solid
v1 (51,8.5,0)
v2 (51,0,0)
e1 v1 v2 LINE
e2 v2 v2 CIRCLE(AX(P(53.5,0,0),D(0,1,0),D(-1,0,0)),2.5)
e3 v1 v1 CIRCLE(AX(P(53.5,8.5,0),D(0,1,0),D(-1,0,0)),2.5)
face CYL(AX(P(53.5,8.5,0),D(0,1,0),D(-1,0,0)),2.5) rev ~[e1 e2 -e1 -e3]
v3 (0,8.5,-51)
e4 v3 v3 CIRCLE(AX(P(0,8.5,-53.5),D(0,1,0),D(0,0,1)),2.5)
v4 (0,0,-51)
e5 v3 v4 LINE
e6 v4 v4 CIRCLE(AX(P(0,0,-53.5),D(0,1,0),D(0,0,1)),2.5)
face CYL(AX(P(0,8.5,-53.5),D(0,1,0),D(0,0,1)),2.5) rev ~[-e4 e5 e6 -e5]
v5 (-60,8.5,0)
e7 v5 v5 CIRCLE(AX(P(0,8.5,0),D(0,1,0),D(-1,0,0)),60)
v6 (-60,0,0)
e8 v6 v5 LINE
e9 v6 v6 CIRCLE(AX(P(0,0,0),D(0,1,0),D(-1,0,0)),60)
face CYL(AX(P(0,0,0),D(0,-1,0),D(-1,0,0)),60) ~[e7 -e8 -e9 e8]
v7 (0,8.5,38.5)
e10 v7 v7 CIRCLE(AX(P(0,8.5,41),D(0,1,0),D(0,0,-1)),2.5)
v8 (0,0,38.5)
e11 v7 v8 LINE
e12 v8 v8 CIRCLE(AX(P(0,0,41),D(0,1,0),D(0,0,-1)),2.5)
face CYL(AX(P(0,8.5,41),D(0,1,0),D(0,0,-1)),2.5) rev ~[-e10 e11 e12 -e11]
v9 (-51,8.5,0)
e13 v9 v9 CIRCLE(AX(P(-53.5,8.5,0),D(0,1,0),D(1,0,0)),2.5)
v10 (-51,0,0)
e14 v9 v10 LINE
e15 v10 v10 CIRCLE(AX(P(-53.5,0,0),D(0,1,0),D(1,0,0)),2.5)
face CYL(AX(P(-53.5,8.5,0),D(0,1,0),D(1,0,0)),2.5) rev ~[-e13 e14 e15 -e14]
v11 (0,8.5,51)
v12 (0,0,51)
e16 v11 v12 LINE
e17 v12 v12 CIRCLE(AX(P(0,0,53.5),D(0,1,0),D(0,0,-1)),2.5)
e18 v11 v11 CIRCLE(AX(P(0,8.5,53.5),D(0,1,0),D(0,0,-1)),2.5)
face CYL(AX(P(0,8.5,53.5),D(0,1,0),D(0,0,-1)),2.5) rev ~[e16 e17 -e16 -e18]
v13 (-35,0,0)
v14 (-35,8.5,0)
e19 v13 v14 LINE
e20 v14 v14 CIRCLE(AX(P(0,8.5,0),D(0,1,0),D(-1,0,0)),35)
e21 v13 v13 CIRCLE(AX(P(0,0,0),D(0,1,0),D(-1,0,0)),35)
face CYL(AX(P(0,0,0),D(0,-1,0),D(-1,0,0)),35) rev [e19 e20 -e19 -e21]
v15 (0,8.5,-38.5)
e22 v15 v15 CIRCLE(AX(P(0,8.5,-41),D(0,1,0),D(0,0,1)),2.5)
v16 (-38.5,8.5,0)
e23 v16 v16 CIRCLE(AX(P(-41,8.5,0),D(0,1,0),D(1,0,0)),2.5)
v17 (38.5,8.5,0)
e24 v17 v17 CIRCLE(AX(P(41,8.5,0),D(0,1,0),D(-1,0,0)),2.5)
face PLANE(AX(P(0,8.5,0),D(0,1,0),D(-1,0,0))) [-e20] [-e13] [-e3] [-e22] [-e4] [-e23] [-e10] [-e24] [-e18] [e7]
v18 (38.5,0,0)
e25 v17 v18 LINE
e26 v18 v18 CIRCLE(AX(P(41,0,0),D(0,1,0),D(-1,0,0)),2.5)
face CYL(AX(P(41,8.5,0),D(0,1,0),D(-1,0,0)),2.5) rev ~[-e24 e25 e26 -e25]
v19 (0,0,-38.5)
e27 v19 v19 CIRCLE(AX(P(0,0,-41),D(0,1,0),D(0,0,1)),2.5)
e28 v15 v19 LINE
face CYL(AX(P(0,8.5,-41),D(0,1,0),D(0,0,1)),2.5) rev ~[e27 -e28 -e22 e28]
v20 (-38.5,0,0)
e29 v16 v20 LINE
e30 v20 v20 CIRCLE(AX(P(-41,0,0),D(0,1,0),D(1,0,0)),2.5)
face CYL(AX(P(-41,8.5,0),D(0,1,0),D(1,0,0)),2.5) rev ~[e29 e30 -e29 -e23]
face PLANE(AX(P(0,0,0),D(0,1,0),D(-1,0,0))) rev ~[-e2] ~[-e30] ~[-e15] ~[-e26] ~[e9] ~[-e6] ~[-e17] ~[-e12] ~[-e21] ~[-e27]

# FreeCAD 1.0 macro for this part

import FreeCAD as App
import Part
import Sketcher
from FreeCAD import Vector

doc = App.newDocument("Part")
body = doc.addObject("PartDesign::Body", "Body")

# Sketch on XZ plane
sketch1 = doc.addObject("Sketcher::SketchObject", "Sketch")
body.addObject(sketch1)
sketch1.AttachmentSupport = (doc.XZ_Plane, [""])
sketch1.MapMode = "FlatFace"
sketch1.addGeometry([
    Part.Circle(Vector(0, 0, 0), Vector(0, 0, 1), 60),
    Part.Circle(Vector(0, 0, 0), Vector(0, 0, 1), 35),
], False)
sketch1.addConstraint([
    Sketcher.Constraint("Coincident", 0, 3, -1, 1),
    Sketcher.Constraint("Coincident", 1, 3, -1, 1),
    Sketcher.Constraint("Diameter", 0, 120.0),
    Sketcher.Constraint("Diameter", 1, 70.0),
])
pad1 = doc.addObject("PartDesign::Pad", "Pad")
body.addObject(pad1)
pad1.Profile = sketch1
pad1.Length = 8.5
pad1.Reversed = True

# Sketch on XZ plane
sketch2 = doc.addObject("Sketcher::SketchObject", "Sketch001")
body.addObject(sketch2)
sketch2.AttachmentSupport = (doc.XZ_Plane, [""])
sketch2.MapMode = "FlatFace"
sketch2.AttachmentOffset = App.Placement(Vector(0, 0, -8.5), App.Rotation())
sketch2.addGeometry([
    Part.Circle(Vector(-41, 0, 0), Vector(0, 0, 1), 2.5),
    Part.Circle(Vector(-53.5, 0, 0), Vector(0, 0, 1), 2.5),
], False)
sketch2.addConstraint([
    Sketcher.Constraint("Equal", 0, 1),
    Sketcher.Constraint("PointOnObject", 0, 3, -1),
    Sketcher.Constraint("PointOnObject", 1, 3, -1),
    Sketcher.Constraint("Diameter", 0, 5.0),
    Sketcher.Constraint("DistanceX", 0, 3, -1, 1, 41.0),
    Sketcher.Constraint("DistanceX", 1, 3, -1, 1, 53.5),
])
pocket1 = doc.addObject("PartDesign::Pocket", "Pocket")
body.addObject(pocket1)
pocket1.Profile = sketch2
pocket1.Type = "ThroughAll"
pocket1.Reversed = True
doc.recompute()

polarpattern = doc.addObject("PartDesign::PolarPattern", "PolarPattern")
body.addObject(polarpattern)
polarpattern.Originals = [pocket1]
polarpattern.Axis = (doc.Y_Axis, [""])
polarpattern.Angle = 360
polarpattern.Occurrences = 4
body.Tip = polarpattern

doc.recompute()
